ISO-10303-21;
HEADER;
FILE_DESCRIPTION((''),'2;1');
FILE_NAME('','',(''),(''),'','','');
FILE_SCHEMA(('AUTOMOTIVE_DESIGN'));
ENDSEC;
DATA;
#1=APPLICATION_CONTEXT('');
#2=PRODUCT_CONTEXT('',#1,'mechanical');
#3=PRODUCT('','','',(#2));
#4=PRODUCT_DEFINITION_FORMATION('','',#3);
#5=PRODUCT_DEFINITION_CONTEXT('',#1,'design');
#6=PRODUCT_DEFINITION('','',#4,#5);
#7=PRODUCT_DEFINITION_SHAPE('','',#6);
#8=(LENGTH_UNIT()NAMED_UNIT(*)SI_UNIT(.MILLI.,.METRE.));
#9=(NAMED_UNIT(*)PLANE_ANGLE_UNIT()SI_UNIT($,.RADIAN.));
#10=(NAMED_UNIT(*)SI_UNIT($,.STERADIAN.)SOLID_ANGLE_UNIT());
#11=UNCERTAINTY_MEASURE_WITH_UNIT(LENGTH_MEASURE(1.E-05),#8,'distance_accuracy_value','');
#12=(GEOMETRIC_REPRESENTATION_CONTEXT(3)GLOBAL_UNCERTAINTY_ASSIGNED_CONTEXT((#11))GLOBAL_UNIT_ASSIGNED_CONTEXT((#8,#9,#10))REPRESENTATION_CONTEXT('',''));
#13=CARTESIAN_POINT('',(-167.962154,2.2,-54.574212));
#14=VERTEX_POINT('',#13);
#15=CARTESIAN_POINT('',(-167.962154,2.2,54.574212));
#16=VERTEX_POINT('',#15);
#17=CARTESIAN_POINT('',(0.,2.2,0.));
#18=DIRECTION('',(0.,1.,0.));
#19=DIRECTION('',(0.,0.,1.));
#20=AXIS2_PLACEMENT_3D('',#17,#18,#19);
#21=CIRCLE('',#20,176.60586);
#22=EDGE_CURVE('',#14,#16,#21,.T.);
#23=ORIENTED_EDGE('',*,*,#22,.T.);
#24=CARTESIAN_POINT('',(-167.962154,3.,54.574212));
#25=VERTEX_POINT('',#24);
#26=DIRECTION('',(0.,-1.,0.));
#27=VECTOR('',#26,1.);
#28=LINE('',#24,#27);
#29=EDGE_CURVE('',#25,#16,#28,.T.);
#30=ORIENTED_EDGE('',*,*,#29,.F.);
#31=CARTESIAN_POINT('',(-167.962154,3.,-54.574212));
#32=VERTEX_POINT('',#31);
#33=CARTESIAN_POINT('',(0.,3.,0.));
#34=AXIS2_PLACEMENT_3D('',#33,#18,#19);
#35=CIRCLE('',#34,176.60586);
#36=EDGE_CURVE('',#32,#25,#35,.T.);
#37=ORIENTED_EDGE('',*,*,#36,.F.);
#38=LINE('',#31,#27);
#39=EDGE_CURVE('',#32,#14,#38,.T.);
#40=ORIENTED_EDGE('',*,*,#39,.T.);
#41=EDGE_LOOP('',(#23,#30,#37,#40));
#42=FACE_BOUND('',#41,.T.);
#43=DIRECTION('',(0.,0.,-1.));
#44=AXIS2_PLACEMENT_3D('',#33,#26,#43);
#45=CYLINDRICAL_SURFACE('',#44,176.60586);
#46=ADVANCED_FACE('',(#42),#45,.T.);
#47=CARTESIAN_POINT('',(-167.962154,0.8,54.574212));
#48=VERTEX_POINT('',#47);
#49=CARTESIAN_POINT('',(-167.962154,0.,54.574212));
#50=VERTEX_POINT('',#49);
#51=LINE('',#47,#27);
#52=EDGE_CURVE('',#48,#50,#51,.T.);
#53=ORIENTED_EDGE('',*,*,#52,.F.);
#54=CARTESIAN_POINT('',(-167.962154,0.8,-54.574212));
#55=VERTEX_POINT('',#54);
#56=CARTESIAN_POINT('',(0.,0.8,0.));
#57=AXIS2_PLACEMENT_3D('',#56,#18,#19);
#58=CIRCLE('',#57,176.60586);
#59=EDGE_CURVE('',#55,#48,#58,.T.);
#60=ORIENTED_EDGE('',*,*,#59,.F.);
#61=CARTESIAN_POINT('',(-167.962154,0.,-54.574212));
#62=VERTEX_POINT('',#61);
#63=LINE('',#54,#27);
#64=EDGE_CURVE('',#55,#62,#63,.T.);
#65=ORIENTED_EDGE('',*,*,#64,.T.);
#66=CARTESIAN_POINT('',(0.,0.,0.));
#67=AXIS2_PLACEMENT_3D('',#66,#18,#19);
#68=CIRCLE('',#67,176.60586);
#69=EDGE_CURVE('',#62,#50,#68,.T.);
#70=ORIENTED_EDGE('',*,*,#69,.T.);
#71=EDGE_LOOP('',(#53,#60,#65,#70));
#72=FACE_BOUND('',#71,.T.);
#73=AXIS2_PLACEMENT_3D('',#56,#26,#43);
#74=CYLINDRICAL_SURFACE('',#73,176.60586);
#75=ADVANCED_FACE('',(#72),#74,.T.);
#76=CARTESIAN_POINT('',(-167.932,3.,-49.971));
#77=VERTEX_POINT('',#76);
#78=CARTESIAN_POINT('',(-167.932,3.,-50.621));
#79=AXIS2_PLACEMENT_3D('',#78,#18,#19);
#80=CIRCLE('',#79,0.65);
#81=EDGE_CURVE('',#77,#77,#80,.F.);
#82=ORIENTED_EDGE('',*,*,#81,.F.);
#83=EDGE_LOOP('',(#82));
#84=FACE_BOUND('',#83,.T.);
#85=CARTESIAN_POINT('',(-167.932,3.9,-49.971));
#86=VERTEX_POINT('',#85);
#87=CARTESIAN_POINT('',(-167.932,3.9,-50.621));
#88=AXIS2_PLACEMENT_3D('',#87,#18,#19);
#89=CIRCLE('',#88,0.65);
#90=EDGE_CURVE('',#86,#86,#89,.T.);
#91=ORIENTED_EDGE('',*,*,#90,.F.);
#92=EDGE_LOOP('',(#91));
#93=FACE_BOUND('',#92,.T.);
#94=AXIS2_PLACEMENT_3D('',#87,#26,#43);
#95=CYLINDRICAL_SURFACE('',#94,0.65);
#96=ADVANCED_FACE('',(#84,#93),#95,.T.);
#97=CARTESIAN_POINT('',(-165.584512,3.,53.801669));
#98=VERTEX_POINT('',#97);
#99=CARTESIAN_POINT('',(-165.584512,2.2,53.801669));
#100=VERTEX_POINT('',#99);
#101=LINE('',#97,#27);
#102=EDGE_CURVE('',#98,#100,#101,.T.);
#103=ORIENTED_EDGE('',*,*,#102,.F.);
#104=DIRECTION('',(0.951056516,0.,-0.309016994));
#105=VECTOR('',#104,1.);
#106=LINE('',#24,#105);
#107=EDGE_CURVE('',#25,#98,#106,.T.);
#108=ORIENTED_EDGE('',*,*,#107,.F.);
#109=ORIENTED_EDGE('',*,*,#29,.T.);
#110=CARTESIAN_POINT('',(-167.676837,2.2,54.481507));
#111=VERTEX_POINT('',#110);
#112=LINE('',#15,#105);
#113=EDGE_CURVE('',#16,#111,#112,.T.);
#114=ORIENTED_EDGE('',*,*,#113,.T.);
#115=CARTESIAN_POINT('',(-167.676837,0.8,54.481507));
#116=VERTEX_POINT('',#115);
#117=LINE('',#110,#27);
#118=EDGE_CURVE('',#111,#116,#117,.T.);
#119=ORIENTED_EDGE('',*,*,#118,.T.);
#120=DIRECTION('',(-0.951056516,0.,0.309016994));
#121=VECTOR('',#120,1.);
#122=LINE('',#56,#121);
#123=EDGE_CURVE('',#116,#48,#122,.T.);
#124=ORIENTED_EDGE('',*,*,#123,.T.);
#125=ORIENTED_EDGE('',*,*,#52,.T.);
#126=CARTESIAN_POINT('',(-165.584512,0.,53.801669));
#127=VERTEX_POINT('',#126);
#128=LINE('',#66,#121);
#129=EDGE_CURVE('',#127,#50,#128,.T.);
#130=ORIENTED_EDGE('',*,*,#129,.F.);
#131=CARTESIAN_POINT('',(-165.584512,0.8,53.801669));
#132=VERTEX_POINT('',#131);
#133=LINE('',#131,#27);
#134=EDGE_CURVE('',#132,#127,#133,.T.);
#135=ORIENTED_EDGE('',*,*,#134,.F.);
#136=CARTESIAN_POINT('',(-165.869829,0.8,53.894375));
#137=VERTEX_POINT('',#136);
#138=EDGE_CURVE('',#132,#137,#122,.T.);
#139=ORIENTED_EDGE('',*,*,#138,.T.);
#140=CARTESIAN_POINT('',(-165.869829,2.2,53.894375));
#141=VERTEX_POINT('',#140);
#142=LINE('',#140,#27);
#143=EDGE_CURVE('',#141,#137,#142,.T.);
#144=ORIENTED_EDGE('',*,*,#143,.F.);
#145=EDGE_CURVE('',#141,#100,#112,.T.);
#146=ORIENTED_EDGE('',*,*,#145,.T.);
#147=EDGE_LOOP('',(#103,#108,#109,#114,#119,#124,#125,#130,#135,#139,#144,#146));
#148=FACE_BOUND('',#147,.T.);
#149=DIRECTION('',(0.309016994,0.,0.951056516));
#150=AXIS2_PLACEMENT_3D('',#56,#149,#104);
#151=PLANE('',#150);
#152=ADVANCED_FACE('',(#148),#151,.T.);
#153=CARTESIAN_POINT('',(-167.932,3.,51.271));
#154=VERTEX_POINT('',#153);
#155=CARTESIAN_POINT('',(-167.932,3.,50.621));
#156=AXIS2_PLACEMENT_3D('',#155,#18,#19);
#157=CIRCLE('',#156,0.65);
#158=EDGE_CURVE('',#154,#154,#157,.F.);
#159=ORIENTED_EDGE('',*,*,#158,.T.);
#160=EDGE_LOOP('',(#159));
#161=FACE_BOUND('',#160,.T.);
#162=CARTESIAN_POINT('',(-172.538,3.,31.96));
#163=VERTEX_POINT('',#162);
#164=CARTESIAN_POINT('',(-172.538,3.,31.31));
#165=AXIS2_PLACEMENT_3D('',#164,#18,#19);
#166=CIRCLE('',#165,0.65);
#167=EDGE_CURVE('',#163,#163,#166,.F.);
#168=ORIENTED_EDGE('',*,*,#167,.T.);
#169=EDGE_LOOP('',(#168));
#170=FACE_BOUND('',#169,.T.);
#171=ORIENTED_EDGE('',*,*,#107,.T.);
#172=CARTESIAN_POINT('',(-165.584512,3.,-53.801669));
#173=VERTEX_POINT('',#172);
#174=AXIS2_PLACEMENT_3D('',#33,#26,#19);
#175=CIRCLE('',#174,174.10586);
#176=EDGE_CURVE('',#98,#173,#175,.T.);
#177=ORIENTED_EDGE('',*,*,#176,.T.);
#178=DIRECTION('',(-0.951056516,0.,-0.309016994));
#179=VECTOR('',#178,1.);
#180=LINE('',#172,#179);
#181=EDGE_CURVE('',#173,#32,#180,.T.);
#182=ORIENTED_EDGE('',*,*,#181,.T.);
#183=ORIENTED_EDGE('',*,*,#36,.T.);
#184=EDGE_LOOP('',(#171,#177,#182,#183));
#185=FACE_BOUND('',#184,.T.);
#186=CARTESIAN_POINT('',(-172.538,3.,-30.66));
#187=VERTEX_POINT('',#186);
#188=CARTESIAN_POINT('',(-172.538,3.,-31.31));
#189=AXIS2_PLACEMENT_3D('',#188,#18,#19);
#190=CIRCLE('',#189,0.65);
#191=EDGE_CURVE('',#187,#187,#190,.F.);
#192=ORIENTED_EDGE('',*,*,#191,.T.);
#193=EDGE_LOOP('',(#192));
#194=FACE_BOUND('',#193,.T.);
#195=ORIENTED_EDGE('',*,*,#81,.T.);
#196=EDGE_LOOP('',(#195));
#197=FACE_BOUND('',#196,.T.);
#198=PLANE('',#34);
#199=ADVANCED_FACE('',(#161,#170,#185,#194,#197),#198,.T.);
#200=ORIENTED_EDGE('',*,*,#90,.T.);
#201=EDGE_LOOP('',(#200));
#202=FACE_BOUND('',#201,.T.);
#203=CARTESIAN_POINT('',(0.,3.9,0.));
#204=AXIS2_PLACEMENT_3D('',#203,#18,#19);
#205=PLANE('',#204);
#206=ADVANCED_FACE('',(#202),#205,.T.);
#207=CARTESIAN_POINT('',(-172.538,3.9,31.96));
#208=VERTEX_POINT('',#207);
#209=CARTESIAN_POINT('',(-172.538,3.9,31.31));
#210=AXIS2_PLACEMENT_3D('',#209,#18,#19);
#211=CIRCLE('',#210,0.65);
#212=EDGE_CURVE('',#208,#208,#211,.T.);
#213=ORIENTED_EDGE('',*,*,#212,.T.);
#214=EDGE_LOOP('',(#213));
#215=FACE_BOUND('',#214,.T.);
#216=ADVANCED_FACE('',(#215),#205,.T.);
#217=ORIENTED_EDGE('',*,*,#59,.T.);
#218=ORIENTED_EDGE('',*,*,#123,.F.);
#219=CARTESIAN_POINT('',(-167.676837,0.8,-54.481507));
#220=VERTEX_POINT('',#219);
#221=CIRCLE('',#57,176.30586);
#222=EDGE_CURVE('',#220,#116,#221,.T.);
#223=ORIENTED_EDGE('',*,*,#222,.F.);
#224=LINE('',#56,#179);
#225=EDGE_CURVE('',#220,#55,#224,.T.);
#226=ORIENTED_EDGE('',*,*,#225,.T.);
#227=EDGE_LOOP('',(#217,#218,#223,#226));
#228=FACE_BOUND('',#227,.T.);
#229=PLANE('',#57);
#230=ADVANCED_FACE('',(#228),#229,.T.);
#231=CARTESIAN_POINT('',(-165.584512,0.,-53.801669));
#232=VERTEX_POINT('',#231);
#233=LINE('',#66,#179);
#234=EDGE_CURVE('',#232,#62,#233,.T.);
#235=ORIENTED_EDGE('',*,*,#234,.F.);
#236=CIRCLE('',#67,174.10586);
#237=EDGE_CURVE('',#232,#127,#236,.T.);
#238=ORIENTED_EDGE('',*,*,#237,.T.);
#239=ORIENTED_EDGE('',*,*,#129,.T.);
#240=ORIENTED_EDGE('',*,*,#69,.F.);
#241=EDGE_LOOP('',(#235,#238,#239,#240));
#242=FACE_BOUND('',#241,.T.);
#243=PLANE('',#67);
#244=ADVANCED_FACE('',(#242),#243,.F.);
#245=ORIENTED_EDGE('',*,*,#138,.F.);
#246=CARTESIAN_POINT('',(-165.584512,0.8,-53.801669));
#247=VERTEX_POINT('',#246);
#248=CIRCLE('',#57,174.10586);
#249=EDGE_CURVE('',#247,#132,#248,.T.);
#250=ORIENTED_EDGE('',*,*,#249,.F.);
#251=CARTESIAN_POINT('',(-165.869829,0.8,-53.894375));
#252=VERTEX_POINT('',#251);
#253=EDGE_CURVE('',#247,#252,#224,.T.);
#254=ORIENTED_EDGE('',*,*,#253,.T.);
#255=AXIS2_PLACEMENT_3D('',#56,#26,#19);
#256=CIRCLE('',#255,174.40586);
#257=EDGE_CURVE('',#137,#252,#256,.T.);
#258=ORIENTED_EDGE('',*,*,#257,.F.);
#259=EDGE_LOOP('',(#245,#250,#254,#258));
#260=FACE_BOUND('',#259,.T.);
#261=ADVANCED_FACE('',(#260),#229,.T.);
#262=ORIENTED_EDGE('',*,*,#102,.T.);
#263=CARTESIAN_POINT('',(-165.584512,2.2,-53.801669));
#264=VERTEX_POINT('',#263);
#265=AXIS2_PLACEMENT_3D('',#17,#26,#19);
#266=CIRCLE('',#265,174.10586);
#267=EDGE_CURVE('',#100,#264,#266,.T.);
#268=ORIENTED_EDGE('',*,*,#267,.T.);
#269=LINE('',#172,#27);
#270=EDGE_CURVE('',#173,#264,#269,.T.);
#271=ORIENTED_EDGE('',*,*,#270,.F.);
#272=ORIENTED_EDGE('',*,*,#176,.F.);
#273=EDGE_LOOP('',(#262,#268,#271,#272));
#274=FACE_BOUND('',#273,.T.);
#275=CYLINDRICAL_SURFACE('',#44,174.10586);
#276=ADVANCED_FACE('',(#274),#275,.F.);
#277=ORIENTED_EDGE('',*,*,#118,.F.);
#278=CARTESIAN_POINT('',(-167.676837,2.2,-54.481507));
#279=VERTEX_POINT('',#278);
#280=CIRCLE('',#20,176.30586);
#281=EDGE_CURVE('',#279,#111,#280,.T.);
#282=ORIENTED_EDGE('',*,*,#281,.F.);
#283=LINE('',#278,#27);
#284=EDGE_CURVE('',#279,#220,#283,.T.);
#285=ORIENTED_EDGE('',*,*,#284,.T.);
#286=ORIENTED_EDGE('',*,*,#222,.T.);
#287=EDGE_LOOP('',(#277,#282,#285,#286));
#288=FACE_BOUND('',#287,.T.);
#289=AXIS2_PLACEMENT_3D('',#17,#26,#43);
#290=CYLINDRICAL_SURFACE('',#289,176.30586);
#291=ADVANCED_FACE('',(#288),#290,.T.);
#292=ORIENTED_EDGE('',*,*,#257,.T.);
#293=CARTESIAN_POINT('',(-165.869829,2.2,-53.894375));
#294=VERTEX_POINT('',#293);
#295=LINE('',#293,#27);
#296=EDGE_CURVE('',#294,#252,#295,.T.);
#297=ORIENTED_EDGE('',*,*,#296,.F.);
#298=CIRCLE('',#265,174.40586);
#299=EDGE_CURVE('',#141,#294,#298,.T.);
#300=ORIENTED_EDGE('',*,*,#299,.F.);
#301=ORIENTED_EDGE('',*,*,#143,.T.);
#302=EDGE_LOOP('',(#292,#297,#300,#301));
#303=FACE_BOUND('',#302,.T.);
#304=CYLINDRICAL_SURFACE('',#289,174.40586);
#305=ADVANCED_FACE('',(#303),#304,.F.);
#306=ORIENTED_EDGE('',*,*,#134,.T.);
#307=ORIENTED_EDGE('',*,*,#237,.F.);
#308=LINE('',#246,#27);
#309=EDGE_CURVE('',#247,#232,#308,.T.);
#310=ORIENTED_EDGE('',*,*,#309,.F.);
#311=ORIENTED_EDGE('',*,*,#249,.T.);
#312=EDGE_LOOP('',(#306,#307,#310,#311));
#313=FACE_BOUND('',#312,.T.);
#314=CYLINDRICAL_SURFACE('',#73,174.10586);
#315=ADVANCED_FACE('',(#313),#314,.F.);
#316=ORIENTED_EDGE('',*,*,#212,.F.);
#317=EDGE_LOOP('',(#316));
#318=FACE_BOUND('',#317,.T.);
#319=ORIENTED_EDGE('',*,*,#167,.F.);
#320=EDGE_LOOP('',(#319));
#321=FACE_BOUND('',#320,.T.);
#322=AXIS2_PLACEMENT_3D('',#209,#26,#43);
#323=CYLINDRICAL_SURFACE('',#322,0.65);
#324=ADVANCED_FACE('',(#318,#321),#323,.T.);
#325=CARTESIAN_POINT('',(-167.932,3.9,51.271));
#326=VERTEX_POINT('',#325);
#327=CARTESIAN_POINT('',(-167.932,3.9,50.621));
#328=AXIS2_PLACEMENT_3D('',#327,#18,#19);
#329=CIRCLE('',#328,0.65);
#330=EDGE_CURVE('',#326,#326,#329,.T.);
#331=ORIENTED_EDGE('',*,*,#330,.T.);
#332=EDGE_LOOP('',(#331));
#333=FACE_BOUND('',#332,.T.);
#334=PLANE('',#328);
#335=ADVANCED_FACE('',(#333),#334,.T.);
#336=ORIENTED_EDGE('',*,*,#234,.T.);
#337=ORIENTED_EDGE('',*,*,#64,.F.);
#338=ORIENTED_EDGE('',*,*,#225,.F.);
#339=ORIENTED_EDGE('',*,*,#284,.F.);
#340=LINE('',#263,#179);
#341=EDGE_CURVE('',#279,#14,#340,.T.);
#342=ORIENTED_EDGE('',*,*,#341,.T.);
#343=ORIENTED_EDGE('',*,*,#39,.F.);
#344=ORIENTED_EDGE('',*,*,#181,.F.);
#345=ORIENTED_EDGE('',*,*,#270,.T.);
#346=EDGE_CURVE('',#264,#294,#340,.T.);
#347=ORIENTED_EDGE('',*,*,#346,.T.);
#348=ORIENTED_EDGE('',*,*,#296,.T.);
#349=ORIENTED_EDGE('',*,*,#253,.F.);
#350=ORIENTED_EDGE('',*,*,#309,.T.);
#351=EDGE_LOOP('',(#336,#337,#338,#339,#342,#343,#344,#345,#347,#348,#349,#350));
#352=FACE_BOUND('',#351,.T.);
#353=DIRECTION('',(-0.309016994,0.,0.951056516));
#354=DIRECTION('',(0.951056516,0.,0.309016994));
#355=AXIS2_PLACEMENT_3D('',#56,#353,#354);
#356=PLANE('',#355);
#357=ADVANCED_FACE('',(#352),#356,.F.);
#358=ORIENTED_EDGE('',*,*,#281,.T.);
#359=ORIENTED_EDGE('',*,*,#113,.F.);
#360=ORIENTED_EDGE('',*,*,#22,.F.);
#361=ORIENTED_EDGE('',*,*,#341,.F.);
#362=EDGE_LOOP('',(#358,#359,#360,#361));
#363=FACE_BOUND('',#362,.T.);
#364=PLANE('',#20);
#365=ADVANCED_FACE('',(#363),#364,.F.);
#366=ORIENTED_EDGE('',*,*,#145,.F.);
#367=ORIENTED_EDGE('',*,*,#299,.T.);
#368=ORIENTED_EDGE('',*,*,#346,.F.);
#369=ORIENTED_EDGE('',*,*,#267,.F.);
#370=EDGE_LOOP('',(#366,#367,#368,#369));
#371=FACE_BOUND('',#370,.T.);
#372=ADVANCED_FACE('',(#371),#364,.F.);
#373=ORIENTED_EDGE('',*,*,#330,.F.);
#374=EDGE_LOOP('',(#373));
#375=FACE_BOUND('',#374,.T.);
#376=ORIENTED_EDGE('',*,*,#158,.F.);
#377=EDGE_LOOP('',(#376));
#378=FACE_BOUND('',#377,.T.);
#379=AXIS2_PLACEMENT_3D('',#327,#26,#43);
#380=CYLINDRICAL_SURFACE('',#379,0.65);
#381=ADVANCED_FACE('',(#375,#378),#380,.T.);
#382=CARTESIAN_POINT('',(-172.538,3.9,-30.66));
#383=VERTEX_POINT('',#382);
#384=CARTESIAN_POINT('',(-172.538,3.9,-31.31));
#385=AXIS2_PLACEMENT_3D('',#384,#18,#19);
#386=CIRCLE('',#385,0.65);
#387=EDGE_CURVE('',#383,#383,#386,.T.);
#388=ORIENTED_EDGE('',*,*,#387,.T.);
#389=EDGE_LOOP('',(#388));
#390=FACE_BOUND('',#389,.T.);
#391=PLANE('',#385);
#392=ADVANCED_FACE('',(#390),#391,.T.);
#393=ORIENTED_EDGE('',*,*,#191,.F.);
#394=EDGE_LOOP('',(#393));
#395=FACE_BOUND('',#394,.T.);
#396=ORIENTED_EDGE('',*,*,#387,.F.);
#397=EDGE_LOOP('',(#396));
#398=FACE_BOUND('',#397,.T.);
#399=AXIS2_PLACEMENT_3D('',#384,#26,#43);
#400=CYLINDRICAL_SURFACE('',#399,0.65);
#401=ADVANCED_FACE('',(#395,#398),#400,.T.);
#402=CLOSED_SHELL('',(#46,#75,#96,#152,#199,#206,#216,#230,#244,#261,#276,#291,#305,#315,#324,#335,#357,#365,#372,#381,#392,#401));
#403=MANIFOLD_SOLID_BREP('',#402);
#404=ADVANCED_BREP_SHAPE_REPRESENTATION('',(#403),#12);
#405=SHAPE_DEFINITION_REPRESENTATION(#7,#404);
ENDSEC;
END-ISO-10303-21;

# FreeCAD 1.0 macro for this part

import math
import FreeCAD as App
import Part
import Sketcher
Q = App.Units.Quantity

doc = App.newDocument("Part")
body = doc.addObject("PartDesign::Body", "Body")

sketch1 = body.newObject("Sketcher::SketchObject", "Sketch")
sketch1.AttachmentSupport = (doc.getObject("XZ_Plane"), [""])
sketch1.MapMode = "FlatFace"
sketch1.addGeometry([
    Part.ArcOfCircle(Part.Circle(App.Vector(0, 0, 0), App.Vector(0, 0, 1), 174.1), math.radians(162), math.radians(198)),
    Part.LineSegment(App.Vector(-165.6, -53.8, 0), App.Vector(-168, -54.6, 0)),
    Part.ArcOfCircle(Part.Circle(App.Vector(0, 0, 0), App.Vector(0, 0, 1), 176.6), math.radians(162), math.radians(198)),
    Part.LineSegment(App.Vector(-168, 54.6, 0), App.Vector(-165.6, 53.8, 0)),
], False)
sketch1.addConstraint([
    Sketcher.Constraint("Coincident", 0, 2, 1, 1),
    Sketcher.Constraint("Coincident", 1, 2, 2, 2),
    Sketcher.Constraint("Coincident", 2, 1, 3, 1),
    Sketcher.Constraint("Coincident", 3, 2, 0, 1),
    Sketcher.Constraint("Coincident", 0, 3, -1, 1),
    Sketcher.Constraint("Coincident", 2, 3, -1, 1),
    Sketcher.Constraint("Vertical", 1, 2, 2, 1),
    Sketcher.Constraint("Vertical", 0, 2, 3, 2),
    Sketcher.Constraint("Angle", 1, Q("-162 deg")),
    Sketcher.Constraint("Distance", 1, 2.5),
    Sketcher.Constraint("Radius", 0, 174.10586),
    Sketcher.Constraint("DistanceY", 0, 2, -1, 1, 53.801669),
])
pad1 = body.newObject("PartDesign::Pad", "Pad")
pad1.Profile = sketch1
pad1.Length = 0.8
pad1.Reversed = True

sketch2 = body.newObject("Sketcher::SketchObject", "Sketch001")
sketch2.AttachmentSupport = (doc.getObject("XZ_Plane"), [""])
sketch2.MapMode = "FlatFace"
sketch2.AttachmentOffset = App.Placement(App.Vector(0, 0, -0.8), App.Rotation())
sketch2.addGeometry([
    Part.LineSegment(App.Vector(-165.9, -53.9, 0), App.Vector(-167.7, -54.5, 0)),
    Part.ArcOfCircle(Part.Circle(App.Vector(0, 0, 0), App.Vector(0, 0, 1), 176.3), math.radians(162), math.radians(198)),
    Part.LineSegment(App.Vector(-167.7, 54.5, 0), App.Vector(-165.9, 53.9, 0)),
    Part.ArcOfCircle(Part.Circle(App.Vector(0, 0, 0), App.Vector(0, 0, 1), 174.4), math.radians(162), math.radians(198)),
], False)
sketch2.addConstraint([
    Sketcher.Constraint("Coincident", 0, 2, 1, 2),
    Sketcher.Constraint("Coincident", 1, 1, 2, 1),
    Sketcher.Constraint("Coincident", 2, 2, 3, 1),
    Sketcher.Constraint("Coincident", 3, 2, 0, 1),
    Sketcher.Constraint("Coincident", 1, 3, -1, 1),
    Sketcher.Constraint("Coincident", 3, 3, -1, 1),
    Sketcher.Constraint("Vertical", 0, 2, 1, 1),
    Sketcher.Constraint("Vertical", 2, 2, 3, 2),
    Sketcher.Constraint("Angle", 0, Q("-162 deg")),
    Sketcher.Constraint("Distance", 0, 1.9),
    Sketcher.Constraint("Radius", 1, 176.30586),
    Sketcher.Constraint("DistanceX", 2, 2, -1, 1, 165.869829),
])
pad2 = body.newObject("PartDesign::Pad", "Pad001")
pad2.Profile = sketch2
pad2.Length = 1.4
pad2.Reversed = True

sketch3 = body.newObject("Sketcher::SketchObject", "Sketch002")
sketch3.AttachmentSupport = (doc.getObject("XZ_Plane"), [""])
sketch3.MapMode = "FlatFace"
sketch3.AttachmentOffset = App.Placement(App.Vector(0, 0, -2.2), App.Rotation())
sketch3.addGeometry([
    Part.LineSegment(App.Vector(-168, 54.6, 0), App.Vector(-165.6, 53.8, 0)),
    Part.ArcOfCircle(Part.Circle(App.Vector(0, 0, 0), App.Vector(0, 0, 1), 174.1), math.radians(162), math.radians(198)),
    Part.LineSegment(App.Vector(-165.6, -53.8, 0), App.Vector(-168, -54.6, 0)),
    Part.ArcOfCircle(Part.Circle(App.Vector(0, 0, 0), App.Vector(0, 0, 1), 176.6), math.radians(162), math.radians(198)),
], False)
sketch3.addConstraint([
    Sketcher.Constraint("Coincident", 0, 2, 1, 1),
    Sketcher.Constraint("Coincident", 1, 2, 2, 1),
    Sketcher.Constraint("Coincident", 2, 2, 3, 2),
    Sketcher.Constraint("Coincident", 3, 1, 0, 1),
    Sketcher.Constraint("Coincident", 1, 3, -1, 1),
    Sketcher.Constraint("Coincident", 3, 3, -1, 1),
    Sketcher.Constraint("Vertical", 0, 2, 1, 2),
    Sketcher.Constraint("Vertical", 2, 2, 3, 1),
    Sketcher.Constraint("Angle", 0, Q("-18 deg")),
    Sketcher.Constraint("Distance", 0, 2.5),
    Sketcher.Constraint("Radius", 1, 174.10586),
    Sketcher.Constraint("DistanceY", -1, 1, 0, 2, 53.801669),
])
pad3 = body.newObject("PartDesign::Pad", "Pad002")
pad3.Profile = sketch3
pad3.Length = 0.8
pad3.Reversed = True

sketch4 = body.newObject("Sketcher::SketchObject", "Sketch003")
sketch4.AttachmentSupport = (doc.getObject("XZ_Plane"), [""])
sketch4.MapMode = "FlatFace"
sketch4.addGeometry([
    Part.Circle(App.Vector(-172.5, 31.3, 0), App.Vector(0, 0, 1), 0.7),
    Part.Circle(App.Vector(-167.9, -50.6, 0), App.Vector(0, 0, 1), 0.7),
    Part.Circle(App.Vector(-167.9, 50.6, 0), App.Vector(0, 0, 1), 0.7),
    Part.Circle(App.Vector(-172.5, -31.3, 0), App.Vector(0, 0, 1), 0.7),
], False)
sketch4.addConstraint([
    Sketcher.Constraint("Equal", 0, 1),
    Sketcher.Constraint("Equal", 1, 2),
    Sketcher.Constraint("Equal", 2, 3),
    Sketcher.Constraint("Symmetric", 1, 3, 2, 3, -1),
    Sketcher.Constraint("Symmetric", 0, 3, 3, 3, -1),
    Sketcher.Constraint("Diameter", 0, 1.3),
    Sketcher.Constraint("DistanceY", -1, 1, 0, 3, 31.31),
    Sketcher.Constraint("DistanceX", 0, 3, -1, 1, 172.538),
    Sketcher.Constraint("DistanceX", 1, 3, -1, 1, 167.932),
    Sketcher.Constraint("DistanceY", 1, 3, -1, 1, 50.621),
])
pad4 = body.newObject("PartDesign::Pad", "Pad003")
pad4.Profile = sketch4
pad4.Length = 3.9
pad4.Reversed = True

doc.recompute()
